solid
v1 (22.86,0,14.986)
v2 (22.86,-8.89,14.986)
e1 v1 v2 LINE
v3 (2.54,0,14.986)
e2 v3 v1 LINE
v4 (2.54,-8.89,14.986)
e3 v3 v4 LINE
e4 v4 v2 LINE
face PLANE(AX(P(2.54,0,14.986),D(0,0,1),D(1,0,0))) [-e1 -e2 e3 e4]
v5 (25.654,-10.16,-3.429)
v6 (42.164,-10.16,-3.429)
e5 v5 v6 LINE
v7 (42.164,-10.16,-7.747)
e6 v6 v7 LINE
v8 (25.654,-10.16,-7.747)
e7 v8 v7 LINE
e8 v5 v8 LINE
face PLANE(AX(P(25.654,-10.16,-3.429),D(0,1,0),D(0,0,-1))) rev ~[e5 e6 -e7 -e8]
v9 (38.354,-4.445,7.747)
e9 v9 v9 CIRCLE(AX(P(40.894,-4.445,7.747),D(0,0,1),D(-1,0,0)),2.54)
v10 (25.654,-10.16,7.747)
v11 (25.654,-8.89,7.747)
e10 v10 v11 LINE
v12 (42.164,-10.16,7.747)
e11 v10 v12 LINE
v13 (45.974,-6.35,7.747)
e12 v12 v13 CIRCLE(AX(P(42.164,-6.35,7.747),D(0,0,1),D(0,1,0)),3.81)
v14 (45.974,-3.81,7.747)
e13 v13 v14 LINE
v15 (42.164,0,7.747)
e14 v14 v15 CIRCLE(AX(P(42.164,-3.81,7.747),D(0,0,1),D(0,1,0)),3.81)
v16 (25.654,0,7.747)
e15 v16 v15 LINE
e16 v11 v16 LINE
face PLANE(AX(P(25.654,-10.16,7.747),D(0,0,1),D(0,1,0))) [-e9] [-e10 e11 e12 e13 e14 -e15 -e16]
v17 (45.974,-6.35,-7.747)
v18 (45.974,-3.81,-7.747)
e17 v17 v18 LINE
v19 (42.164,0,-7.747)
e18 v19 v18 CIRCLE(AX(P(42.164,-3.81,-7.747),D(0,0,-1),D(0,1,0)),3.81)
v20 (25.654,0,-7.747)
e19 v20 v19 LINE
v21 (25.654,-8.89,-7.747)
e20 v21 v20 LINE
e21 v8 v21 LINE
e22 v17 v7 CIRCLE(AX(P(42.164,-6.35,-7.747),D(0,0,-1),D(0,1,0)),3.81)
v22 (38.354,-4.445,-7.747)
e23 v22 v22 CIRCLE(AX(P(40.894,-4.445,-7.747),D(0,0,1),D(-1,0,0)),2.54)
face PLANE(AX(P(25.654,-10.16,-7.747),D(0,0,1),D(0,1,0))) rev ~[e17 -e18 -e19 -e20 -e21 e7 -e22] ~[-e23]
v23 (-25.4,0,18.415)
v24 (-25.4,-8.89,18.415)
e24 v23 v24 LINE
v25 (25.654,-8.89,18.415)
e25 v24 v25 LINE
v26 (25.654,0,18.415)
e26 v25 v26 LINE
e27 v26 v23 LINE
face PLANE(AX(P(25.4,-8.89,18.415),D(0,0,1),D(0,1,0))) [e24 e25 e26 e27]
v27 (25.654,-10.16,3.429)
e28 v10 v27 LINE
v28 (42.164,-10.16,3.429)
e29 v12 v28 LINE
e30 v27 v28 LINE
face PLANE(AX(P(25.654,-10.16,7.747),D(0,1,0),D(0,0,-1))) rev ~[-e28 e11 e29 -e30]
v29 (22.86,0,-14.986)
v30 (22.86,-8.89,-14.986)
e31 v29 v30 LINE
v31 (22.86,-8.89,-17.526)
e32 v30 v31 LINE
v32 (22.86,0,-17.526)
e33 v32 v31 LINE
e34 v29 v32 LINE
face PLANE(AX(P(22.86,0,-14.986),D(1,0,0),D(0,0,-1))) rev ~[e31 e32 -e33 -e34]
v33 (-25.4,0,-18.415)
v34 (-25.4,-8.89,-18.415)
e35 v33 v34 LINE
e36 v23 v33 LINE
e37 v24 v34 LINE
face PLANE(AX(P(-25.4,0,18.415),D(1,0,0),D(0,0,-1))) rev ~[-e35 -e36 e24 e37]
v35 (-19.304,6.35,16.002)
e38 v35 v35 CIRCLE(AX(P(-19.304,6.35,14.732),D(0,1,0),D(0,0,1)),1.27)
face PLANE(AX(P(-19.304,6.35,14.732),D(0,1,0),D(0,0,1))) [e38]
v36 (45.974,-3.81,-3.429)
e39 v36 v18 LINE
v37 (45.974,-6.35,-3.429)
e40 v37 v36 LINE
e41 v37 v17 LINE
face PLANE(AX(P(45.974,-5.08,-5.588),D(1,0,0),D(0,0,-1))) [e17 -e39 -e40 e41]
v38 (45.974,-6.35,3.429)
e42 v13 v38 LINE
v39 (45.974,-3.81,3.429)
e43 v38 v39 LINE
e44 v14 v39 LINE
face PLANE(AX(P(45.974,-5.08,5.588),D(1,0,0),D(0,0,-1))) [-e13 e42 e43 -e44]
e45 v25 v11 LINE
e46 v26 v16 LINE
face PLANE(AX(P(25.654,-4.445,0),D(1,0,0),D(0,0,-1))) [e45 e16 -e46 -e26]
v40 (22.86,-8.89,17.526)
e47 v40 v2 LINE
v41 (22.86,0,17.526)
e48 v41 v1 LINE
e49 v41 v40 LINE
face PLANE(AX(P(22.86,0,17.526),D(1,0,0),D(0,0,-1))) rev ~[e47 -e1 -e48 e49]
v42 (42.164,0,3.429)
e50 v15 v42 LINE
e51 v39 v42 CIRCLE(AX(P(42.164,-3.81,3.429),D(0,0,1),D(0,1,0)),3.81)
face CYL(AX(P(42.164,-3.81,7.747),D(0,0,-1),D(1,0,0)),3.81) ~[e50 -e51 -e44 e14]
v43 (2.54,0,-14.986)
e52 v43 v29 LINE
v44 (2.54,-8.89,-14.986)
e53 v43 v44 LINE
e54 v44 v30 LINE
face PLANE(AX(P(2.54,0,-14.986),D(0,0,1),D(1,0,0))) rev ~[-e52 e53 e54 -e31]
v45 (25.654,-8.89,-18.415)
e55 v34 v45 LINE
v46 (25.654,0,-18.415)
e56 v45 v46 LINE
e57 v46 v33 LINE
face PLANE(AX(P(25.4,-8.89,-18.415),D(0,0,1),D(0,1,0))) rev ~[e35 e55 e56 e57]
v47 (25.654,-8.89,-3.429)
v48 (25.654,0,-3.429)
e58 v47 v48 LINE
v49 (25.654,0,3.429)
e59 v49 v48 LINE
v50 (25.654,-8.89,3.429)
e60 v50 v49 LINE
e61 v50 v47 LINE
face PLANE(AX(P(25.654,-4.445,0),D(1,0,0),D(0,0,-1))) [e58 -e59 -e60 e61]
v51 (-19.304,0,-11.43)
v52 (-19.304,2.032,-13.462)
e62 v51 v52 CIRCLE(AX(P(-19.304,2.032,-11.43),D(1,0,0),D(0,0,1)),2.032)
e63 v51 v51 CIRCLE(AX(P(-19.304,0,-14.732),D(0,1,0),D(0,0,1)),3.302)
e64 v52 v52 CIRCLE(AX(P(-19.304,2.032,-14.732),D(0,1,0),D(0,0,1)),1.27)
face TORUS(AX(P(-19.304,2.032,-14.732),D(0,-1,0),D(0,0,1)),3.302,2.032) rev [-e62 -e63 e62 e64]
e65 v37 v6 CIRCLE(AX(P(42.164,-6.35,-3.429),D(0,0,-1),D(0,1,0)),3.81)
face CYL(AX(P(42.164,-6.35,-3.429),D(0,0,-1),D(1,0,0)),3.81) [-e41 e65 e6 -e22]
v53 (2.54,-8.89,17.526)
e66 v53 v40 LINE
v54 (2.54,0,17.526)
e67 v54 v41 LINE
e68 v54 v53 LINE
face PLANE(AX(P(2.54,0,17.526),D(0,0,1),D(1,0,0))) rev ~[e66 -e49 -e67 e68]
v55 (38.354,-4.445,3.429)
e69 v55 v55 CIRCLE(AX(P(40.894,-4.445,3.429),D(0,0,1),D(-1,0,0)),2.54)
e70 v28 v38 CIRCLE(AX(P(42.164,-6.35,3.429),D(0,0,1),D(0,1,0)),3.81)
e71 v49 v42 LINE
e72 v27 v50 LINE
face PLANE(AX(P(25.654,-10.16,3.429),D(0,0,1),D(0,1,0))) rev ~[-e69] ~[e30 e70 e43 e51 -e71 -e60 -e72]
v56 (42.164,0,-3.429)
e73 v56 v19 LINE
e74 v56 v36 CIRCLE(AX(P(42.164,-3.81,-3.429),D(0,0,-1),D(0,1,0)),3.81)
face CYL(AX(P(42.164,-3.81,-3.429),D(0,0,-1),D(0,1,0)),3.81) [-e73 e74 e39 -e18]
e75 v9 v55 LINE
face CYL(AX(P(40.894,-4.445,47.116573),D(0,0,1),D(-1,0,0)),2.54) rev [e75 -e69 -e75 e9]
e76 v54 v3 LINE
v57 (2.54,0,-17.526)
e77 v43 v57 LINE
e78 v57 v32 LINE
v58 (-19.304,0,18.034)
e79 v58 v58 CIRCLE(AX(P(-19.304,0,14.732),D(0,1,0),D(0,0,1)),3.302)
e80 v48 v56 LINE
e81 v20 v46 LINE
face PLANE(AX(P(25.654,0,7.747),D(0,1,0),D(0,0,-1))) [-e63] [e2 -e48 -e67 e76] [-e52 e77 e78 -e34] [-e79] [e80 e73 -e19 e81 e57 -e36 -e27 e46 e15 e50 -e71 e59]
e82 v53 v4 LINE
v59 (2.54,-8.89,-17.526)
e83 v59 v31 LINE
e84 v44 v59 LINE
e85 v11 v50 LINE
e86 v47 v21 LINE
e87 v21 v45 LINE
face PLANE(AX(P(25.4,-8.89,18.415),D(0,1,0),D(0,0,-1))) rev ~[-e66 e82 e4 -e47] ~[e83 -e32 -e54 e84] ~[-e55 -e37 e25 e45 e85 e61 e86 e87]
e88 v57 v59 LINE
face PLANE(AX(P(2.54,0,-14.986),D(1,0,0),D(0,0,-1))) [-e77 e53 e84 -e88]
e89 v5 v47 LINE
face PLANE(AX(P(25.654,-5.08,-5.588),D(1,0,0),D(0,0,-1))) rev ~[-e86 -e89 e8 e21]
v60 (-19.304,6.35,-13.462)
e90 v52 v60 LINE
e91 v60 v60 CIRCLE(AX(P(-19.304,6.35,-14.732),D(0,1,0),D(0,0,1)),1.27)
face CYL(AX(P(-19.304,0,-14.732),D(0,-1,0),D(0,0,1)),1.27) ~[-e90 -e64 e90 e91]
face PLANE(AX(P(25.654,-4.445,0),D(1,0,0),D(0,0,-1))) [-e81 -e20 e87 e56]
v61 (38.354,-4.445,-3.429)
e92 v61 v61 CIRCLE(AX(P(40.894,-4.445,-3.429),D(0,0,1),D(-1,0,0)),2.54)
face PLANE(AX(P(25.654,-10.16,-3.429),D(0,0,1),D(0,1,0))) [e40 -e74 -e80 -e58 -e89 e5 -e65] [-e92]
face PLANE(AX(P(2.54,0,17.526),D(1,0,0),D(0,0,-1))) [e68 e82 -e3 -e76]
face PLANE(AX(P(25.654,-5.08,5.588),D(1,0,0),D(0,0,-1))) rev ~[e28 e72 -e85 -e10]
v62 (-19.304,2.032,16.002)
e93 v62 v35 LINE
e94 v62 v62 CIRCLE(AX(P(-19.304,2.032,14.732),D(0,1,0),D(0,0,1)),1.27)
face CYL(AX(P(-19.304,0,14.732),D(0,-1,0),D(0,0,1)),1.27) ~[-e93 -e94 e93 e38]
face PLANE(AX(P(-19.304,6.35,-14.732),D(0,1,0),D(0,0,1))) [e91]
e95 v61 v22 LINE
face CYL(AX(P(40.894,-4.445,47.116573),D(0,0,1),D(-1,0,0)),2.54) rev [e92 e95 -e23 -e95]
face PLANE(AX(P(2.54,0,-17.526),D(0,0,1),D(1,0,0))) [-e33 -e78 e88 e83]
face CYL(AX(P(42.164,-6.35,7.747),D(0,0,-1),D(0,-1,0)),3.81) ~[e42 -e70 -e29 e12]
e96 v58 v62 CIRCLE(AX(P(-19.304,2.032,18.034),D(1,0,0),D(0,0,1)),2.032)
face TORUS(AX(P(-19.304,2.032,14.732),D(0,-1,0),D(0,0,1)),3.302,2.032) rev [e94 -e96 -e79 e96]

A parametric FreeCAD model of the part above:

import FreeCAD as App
import Part
import Sketcher
from FreeCAD import Vector
Q = App.Units.Quantity


def edges_at(feature, points):
    """Names of the edges that pass closest to the given points."""
    edges = feature.Shape.Edges
    near = lambda p: min(range(len(edges)), key=lambda i: edges[i].distToShape(Part.Vertex(*p))[0])
    return sorted({f"Edge{near(p) + 1}" for p in points})


def add_polygon(sketch, points):
    """Adds a closed chain of lines whose ends are joined by coincident constraints."""
    first, n = sketch.GeometryCount, len(points)
    for a, b in zip(points, points[1:] + points[:1]):
        sketch.addGeometry(Part.LineSegment(App.Vector(*a, 0), App.Vector(*b, 0)), False)
    for i in range(n):
        sketch.addConstraint(Sketcher.Constraint("Coincident", first + i, 2, first + (i + 1) % n, 1))

doc = App.newDocument("Part")
body = doc.addObject("PartDesign::Body", "Body")

sketch1 = doc.addObject("Sketcher::SketchObject", "Sketch")
body.addObject(sketch1)
sketch1.AttachmentSupport = (doc.XZ_Plane, [""])
sketch1.MapMode = "FlatFace"
add_polygon(sketch1, [(-25, -18), (-25, 18), (25, 18), (25, -18)])
sketch1.addConstraint([
    Sketcher.Constraint("Vertical", 0),
    Sketcher.Constraint("Horizontal", 1),
    Sketcher.Constraint("Vertical", 2),
    Sketcher.Constraint("Horizontal", 3),
    Sketcher.Constraint("Symmetric", 0, 2, 2, 2, -1, 1),
    Sketcher.Constraint("DistanceX", 1, 1, 1, 2, Q("2 in")),
    Sketcher.Constraint("DistanceY", 0, 1, 0, 2, Q("1.45 in")),
])
pad1 = doc.addObject("PartDesign::Pad", "Pad")
body.addObject(pad1)
pad1.Profile = sketch1
pad1.Length = Q("0.35 in")

sketch2 = doc.addObject("Sketcher::SketchObject", "Sketch001")
body.addObject(sketch2)
sketch2.AttachmentSupport = (doc.YZ_Plane, [""])
sketch2.MapMode = "FlatFace"
sketch2.AttachmentOffset = App.Placement(Vector(0, 0, 1 * 25.4), App.Rotation())
add_polygon(sketch2, [(0, 18), (-9, 18), (-9, -18), (0, -18)])
sketch2.addConstraint([
    Sketcher.Constraint("Horizontal", 0),
    Sketcher.Constraint("Vertical", 1),
    Sketcher.Constraint("Horizontal", 2),
    Sketcher.Constraint("Vertical", 3),
    Sketcher.Constraint("Symmetric", 2, 2, 3, 2, -1, 1),
    Sketcher.Constraint("DistanceX", 0, 2, 0, 1, Q("0.35 in")),
    Sketcher.Constraint("DistanceY", 1, 2, 1, 1, Q("1.45 in")),
])
pad2 = doc.addObject("PartDesign::Pad", "Pad001")
body.addObject(pad2)
pad2.Profile = sketch2
pad2.Length = Q("0.01 in")

sketch3 = doc.addObject("Sketcher::SketchObject", "Sketch002")
body.addObject(sketch3)
sketch3.AttachmentSupport = (doc.YZ_Plane, [""])
sketch3.MapMode = "FlatFace"
sketch3.AttachmentOffset = App.Placement(Vector(0, 0, 1.01 * 25.4), App.Rotation())
add_polygon(sketch3, [(0, 7.7), (-10.2, 7.7), (-10.2, 3.4), (0, 3.4)])
add_polygon(sketch3, [(0, -3.4), (-10.2, -3.4), (-10.2, -7.7), (0, -7.7)])
sketch3.addConstraint([
    Sketcher.Constraint("Horizontal", 0),
    Sketcher.Constraint("Vertical", 1),
    Sketcher.Constraint("Horizontal", 2),
    Sketcher.Constraint("Vertical", 3),
    Sketcher.Constraint("Horizontal", 4),
    Sketcher.Constraint("Vertical", 5),
    Sketcher.Constraint("Horizontal", 6),
    Sketcher.Constraint("Vertical", 7),
    Sketcher.Constraint("Symmetric", 3, 2, 6, 2, -1, 1),
    Sketcher.Constraint("Symmetric", 1, 2, 4, 2, -1),
    Sketcher.Constraint("PointOnObject", 2, 2, -2),
    Sketcher.Constraint("DistanceX", 0, 2, 0, 1, Q("0.4 in")),
    Sketcher.Constraint("DistanceY", 1, 2, 1, 1, Q("0.17 in")),
    Sketcher.Constraint("DistanceY", 4, 2, 1, 2, Q("0.27 in")),
])
pad3 = doc.addObject("PartDesign::Pad", "Pad002")
body.addObject(pad3)
pad3.Profile = sketch3
pad3.Length = Q("0.8 in")

sketch4 = doc.addObject("Sketcher::SketchObject", "Sketch003")
body.addObject(sketch4)
sketch4.AttachmentSupport = (doc.XY_Plane, [""])
sketch4.MapMode = "FlatFace"
sketch4.AttachmentOffset = App.Placement(Vector(0, 0, -0.305 * 25.4), App.Rotation())
sketch4.addGeometry(Part.Circle(Vector(40.9, -4.4, 0), Vector(0, 0, 1), 2.5), False)
sketch4.addConstraint([
    Sketcher.Constraint("Diameter", 0, Q("0.2 in")),
    Sketcher.Constraint("DistanceX", -1, 1, 0, 3, Q("1.61 in")),
    Sketcher.Constraint("DistanceY", 0, 3, -1, 1, Q("0.175 in")),
])
pocket1 = doc.addObject("PartDesign::Pocket", "Pocket")
body.addObject(pocket1)
pocket1.Profile = sketch4
pocket1.Type = "ThroughAll"
pocket1.Midplane = True
doc.recompute()

fillet = doc.addObject("PartDesign::Fillet", "Fillet")
body.addObject(fillet)
fillet.Base = (pocket1, edges_at(pocket1, [
    (45.974, 0, 5.588),
    (45.974, -10.16, 5.588),
    (45.974, 0, -5.588),
    (45.974, -10.16, -5.588),
]))
fillet.Radius = Q("0.15 in")

sketch5 = doc.addObject("Sketcher::SketchObject", "Sketch004")
body.addObject(sketch5)
sketch5.AttachmentSupport = (doc.XZ_Plane, [""])
sketch5.MapMode = "FlatFace"
add_polygon(sketch5, [(2.5, -17.5), (2.5, -15), (22.9, -15), (22.9, -17.5)])
sketch5.addConstraint([
    Sketcher.Constraint("Vertical", 0),
    Sketcher.Constraint("Horizontal", 1),
    Sketcher.Constraint("Vertical", 2),
    Sketcher.Constraint("Horizontal", 3),
    Sketcher.Constraint("DistanceX", 1, 1, 1, 2, Q("0.8 in")),
    Sketcher.Constraint("DistanceY", 0, 1, 0, 2, Q("0.1 in")),
    Sketcher.Constraint("DistanceX", -1, 1, 0, 2, Q("0.1 in")),
    Sketcher.Constraint("DistanceY", 0, 2, -1, 1, Q("0.59 in")),
])
pocket2 = doc.addObject("PartDesign::Pocket", "Pocket001")
body.addObject(pocket2)
pocket2.Profile = sketch5
pocket2.Type = "ThroughAll"
pocket2.Reversed = True

sketch6 = doc.addObject("Sketcher::SketchObject", "Sketch005")
body.addObject(sketch6)
sketch6.AttachmentSupport = (doc.XZ_Plane, [""])
sketch6.MapMode = "FlatFace"
add_polygon(sketch6, [(2.5, 15), (2.5, 17.5), (22.9, 17.5), (22.9, 15)])
sketch6.addConstraint([
    Sketcher.Constraint("Vertical", 0),
    Sketcher.Constraint("Horizontal", 1),
    Sketcher.Constraint("Vertical", 2),
    Sketcher.Constraint("Horizontal", 3),
    Sketcher.Constraint("DistanceX", 1, 1, 1, 2, Q("0.8 in")),
    Sketcher.Constraint("DistanceY", 0, 1, 0, 2, Q("0.1 in")),
    Sketcher.Constraint("DistanceX", -1, 1, 0, 2, Q("0.1 in")),
    Sketcher.Constraint("DistanceY", -1, 1, 0, 2, Q("0.69 in")),
])
pocket3 = doc.addObject("PartDesign::Pocket", "Pocket002")
body.addObject(pocket3)
pocket3.Profile = sketch6
pocket3.Type = "ThroughAll"
pocket3.Reversed = True

sketch7 = doc.addObject("Sketcher::SketchObject", "Sketch006")
body.addObject(sketch7)
sketch7.AttachmentSupport = (doc.XZ_Plane, [""])
sketch7.MapMode = "FlatFace"
sketch7.addGeometry([
    Part.Circle(Vector(-19.3, 14.7, 0), Vector(0, 0, 1), 1.3),
    Part.Circle(Vector(-19.3, -14.7, 0), Vector(0, 0, 1), 1.3),
], False)
sketch7.addConstraint([
    Sketcher.Constraint("Equal", 0, 1),
    Sketcher.Constraint("Symmetric", 0, 3, 1, 3, -1),
    Sketcher.Constraint("Diameter", 0, Q("0.1 in")),
    Sketcher.Constraint("DistanceX", 0, 3, -1, 1, Q("0.76 in")),
    Sketcher.Constraint("DistanceY", -1, 1, 0, 3, Q("0.58 in")),
])
pad4 = doc.addObject("PartDesign::Pad", "Pad003")
body.addObject(pad4)
pad4.Profile = sketch7
pad4.Length = Q("0.25 in")
pad4.Reversed = True
doc.recompute()

fillet2 = doc.addObject("PartDesign::Fillet", "Fillet001")
body.addObject(fillet2)
fillet2.Base = (pad4, edges_at(pad4, [(-19.304, 0, 13.462), (-19.304, 0, -16.002)]))
fillet2.Radius = Q("0.08 in")

doc.recompute()
